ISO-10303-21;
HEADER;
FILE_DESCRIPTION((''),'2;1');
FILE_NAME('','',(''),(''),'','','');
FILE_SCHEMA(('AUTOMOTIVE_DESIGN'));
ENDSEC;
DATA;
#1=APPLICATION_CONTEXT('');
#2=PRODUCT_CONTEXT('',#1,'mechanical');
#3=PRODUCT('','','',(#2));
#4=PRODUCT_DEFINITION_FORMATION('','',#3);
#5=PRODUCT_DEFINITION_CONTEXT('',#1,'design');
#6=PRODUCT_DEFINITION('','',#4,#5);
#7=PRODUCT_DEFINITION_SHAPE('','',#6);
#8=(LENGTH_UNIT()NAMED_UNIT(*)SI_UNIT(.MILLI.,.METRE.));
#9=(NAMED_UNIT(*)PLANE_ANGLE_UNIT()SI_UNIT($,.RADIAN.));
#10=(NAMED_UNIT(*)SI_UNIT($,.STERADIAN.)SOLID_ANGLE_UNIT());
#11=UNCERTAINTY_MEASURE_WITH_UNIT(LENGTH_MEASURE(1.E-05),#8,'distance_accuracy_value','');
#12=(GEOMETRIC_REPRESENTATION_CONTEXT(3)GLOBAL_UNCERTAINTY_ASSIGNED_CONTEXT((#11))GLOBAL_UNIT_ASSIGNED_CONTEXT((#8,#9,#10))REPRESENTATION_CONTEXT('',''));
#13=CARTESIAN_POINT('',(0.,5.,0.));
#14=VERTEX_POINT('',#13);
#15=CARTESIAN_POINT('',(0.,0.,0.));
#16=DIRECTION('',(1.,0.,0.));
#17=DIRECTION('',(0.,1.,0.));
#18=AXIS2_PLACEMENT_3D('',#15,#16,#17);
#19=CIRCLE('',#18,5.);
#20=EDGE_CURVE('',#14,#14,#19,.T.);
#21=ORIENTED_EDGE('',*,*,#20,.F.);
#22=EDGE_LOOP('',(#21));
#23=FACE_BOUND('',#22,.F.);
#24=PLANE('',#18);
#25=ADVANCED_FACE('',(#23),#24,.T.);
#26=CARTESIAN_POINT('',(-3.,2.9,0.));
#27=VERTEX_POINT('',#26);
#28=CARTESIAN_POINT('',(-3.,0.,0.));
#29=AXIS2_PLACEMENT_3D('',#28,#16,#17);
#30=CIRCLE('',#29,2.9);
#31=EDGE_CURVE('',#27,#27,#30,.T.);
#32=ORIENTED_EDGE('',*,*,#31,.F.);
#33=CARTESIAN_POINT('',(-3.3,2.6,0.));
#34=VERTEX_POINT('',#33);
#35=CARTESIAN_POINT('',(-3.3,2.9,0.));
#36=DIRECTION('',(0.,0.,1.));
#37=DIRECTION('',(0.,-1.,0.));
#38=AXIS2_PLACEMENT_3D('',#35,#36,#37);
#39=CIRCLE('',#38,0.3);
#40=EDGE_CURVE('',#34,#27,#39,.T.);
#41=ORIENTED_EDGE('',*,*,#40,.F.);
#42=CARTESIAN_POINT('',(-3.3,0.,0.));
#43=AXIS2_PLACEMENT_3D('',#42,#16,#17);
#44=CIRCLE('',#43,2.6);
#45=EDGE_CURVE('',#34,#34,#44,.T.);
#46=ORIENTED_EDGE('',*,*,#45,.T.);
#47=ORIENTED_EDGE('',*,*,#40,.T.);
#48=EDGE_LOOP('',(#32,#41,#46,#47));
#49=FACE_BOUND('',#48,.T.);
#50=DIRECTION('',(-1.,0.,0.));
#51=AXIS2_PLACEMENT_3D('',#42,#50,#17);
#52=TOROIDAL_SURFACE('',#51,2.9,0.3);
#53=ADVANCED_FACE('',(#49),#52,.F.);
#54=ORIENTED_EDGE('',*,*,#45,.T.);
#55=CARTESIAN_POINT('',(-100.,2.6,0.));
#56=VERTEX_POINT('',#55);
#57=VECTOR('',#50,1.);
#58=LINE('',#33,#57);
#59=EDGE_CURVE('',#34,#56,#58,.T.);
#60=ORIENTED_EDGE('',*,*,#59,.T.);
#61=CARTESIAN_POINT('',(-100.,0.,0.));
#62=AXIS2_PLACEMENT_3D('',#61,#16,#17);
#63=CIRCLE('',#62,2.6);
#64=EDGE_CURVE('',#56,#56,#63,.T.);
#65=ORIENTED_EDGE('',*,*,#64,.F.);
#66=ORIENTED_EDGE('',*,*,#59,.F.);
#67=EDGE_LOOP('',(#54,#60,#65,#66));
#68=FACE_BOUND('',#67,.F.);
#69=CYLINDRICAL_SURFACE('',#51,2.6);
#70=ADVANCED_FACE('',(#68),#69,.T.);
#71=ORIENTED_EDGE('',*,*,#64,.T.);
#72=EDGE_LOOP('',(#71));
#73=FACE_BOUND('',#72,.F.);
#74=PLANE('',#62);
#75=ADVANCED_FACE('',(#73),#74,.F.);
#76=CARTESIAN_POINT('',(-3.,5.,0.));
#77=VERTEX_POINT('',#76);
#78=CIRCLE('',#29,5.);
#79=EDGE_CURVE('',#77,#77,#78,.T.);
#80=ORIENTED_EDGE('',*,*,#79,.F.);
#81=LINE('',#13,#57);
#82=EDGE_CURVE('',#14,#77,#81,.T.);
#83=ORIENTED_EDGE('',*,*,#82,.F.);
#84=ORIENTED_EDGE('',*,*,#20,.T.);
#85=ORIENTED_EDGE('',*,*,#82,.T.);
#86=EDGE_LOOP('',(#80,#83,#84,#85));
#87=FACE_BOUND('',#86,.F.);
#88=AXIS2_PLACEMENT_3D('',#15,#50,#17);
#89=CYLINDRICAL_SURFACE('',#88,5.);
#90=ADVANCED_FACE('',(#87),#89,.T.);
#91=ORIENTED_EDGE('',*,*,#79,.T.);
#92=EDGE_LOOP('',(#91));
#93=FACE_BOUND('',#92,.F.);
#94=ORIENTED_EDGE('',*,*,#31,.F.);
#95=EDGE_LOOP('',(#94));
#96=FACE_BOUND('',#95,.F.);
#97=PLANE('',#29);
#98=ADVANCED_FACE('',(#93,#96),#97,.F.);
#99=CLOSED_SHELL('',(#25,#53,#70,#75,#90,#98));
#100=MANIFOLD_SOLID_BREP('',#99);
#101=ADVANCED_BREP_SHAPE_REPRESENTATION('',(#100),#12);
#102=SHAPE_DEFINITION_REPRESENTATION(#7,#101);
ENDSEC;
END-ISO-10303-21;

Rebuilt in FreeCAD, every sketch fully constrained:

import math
import FreeCAD as App
import Part
import Sketcher
from FreeCAD import Vector
Q = App.Units.Quantity

doc = App.newDocument("Part")
body = doc.addObject("PartDesign::Body", "Body")

# Sketch on XY plane
sketch1 = body.newObject("Sketcher::SketchObject", "Sketch")
sketch1.AttachmentSupport = (doc.getObject("XY_Plane"), [""])
sketch1.MapMode = "FlatFace"
sketch1.addGeometry(Part.LineSegment(Vector(-100, 0, 0), Vector(0, 0, 0)), False)
sketch1.addGeometry(Part.LineSegment(Vector(0, 0, 0), Vector(0, 5, 0)), False)
sketch1.addGeometry(Part.LineSegment(Vector(0, 5, 0), Vector(-3, 5, 0)), False)
sketch1.addGeometry(Part.LineSegment(Vector(-3, 5, 0), Vector(-3, 2.9, 0)), False)
sketch1.addGeometry(Part.ArcOfCircle(Part.Circle(Vector(-3.3, 2.9, 0), Vector(0, 0, 1), 0.3), math.radians(-90), math.radians(0)), False)
sketch1.addGeometry(Part.LineSegment(Vector(-3.3, 2.6, 0), Vector(-100, 2.6, 0)), False)
sketch1.addGeometry(Part.LineSegment(Vector(-100, 2.6, 0), Vector(-100, 0, 0)), False)
sketch1.addConstraint(Sketcher.Constraint("Coincident", 0, 2, 1, 1))
sketch1.addConstraint(Sketcher.Constraint("Coincident", 1, 2, 2, 1))
sketch1.addConstraint(Sketcher.Constraint("Coincident", 2, 2, 3, 1))
sketch1.addConstraint(Sketcher.Constraint("Tangent", 3, 2, 4, 2))
sketch1.addConstraint(Sketcher.Constraint("Tangent", 4, 1, 5, 1))
sketch1.addConstraint(Sketcher.Constraint("Coincident", 5, 2, 6, 1))
sketch1.addConstraint(Sketcher.Constraint("Coincident", 6, 2, 0, 1))
sketch1.addConstraint(Sketcher.Constraint("Horizontal", 0))
sketch1.addConstraint(Sketcher.Constraint("Vertical", 1))
sketch1.addConstraint(Sketcher.Constraint("Horizontal", 2))
sketch1.addConstraint(Sketcher.Constraint("Vertical", 3))
sketch1.addConstraint(Sketcher.Constraint("Horizontal", 5))
sketch1.addConstraint(Sketcher.Constraint("Vertical", 6))
sketch1.addConstraint(Sketcher.Constraint("Coincident", 0, 2, -1, 1))
sketch1.addConstraint(Sketcher.Constraint("Radius", 4, Q("0.3 mm")))
sketch1.addConstraint(Sketcher.Constraint("DistanceX", 0, 1, 0, 2, Q("100 mm")))
sketch1.addConstraint(Sketcher.Constraint("DistanceX", 2, 2, 2, 1, Q("3 mm")))
sketch1.addConstraint(Sketcher.Constraint("DistanceY", 1, 1, 1, 2, Q("5 mm")))
sketch1.addConstraint(Sketcher.Constraint("DistanceY", 3, 2, 3, 1, Q("2.1 mm")))
revolution = body.newObject("PartDesign::Revolution", "Revolution")
revolution.Profile = sketch1
revolution.ReferenceAxis = (sketch1, ["H_Axis"])
revolution.Angle = 360

doc.recompute()
